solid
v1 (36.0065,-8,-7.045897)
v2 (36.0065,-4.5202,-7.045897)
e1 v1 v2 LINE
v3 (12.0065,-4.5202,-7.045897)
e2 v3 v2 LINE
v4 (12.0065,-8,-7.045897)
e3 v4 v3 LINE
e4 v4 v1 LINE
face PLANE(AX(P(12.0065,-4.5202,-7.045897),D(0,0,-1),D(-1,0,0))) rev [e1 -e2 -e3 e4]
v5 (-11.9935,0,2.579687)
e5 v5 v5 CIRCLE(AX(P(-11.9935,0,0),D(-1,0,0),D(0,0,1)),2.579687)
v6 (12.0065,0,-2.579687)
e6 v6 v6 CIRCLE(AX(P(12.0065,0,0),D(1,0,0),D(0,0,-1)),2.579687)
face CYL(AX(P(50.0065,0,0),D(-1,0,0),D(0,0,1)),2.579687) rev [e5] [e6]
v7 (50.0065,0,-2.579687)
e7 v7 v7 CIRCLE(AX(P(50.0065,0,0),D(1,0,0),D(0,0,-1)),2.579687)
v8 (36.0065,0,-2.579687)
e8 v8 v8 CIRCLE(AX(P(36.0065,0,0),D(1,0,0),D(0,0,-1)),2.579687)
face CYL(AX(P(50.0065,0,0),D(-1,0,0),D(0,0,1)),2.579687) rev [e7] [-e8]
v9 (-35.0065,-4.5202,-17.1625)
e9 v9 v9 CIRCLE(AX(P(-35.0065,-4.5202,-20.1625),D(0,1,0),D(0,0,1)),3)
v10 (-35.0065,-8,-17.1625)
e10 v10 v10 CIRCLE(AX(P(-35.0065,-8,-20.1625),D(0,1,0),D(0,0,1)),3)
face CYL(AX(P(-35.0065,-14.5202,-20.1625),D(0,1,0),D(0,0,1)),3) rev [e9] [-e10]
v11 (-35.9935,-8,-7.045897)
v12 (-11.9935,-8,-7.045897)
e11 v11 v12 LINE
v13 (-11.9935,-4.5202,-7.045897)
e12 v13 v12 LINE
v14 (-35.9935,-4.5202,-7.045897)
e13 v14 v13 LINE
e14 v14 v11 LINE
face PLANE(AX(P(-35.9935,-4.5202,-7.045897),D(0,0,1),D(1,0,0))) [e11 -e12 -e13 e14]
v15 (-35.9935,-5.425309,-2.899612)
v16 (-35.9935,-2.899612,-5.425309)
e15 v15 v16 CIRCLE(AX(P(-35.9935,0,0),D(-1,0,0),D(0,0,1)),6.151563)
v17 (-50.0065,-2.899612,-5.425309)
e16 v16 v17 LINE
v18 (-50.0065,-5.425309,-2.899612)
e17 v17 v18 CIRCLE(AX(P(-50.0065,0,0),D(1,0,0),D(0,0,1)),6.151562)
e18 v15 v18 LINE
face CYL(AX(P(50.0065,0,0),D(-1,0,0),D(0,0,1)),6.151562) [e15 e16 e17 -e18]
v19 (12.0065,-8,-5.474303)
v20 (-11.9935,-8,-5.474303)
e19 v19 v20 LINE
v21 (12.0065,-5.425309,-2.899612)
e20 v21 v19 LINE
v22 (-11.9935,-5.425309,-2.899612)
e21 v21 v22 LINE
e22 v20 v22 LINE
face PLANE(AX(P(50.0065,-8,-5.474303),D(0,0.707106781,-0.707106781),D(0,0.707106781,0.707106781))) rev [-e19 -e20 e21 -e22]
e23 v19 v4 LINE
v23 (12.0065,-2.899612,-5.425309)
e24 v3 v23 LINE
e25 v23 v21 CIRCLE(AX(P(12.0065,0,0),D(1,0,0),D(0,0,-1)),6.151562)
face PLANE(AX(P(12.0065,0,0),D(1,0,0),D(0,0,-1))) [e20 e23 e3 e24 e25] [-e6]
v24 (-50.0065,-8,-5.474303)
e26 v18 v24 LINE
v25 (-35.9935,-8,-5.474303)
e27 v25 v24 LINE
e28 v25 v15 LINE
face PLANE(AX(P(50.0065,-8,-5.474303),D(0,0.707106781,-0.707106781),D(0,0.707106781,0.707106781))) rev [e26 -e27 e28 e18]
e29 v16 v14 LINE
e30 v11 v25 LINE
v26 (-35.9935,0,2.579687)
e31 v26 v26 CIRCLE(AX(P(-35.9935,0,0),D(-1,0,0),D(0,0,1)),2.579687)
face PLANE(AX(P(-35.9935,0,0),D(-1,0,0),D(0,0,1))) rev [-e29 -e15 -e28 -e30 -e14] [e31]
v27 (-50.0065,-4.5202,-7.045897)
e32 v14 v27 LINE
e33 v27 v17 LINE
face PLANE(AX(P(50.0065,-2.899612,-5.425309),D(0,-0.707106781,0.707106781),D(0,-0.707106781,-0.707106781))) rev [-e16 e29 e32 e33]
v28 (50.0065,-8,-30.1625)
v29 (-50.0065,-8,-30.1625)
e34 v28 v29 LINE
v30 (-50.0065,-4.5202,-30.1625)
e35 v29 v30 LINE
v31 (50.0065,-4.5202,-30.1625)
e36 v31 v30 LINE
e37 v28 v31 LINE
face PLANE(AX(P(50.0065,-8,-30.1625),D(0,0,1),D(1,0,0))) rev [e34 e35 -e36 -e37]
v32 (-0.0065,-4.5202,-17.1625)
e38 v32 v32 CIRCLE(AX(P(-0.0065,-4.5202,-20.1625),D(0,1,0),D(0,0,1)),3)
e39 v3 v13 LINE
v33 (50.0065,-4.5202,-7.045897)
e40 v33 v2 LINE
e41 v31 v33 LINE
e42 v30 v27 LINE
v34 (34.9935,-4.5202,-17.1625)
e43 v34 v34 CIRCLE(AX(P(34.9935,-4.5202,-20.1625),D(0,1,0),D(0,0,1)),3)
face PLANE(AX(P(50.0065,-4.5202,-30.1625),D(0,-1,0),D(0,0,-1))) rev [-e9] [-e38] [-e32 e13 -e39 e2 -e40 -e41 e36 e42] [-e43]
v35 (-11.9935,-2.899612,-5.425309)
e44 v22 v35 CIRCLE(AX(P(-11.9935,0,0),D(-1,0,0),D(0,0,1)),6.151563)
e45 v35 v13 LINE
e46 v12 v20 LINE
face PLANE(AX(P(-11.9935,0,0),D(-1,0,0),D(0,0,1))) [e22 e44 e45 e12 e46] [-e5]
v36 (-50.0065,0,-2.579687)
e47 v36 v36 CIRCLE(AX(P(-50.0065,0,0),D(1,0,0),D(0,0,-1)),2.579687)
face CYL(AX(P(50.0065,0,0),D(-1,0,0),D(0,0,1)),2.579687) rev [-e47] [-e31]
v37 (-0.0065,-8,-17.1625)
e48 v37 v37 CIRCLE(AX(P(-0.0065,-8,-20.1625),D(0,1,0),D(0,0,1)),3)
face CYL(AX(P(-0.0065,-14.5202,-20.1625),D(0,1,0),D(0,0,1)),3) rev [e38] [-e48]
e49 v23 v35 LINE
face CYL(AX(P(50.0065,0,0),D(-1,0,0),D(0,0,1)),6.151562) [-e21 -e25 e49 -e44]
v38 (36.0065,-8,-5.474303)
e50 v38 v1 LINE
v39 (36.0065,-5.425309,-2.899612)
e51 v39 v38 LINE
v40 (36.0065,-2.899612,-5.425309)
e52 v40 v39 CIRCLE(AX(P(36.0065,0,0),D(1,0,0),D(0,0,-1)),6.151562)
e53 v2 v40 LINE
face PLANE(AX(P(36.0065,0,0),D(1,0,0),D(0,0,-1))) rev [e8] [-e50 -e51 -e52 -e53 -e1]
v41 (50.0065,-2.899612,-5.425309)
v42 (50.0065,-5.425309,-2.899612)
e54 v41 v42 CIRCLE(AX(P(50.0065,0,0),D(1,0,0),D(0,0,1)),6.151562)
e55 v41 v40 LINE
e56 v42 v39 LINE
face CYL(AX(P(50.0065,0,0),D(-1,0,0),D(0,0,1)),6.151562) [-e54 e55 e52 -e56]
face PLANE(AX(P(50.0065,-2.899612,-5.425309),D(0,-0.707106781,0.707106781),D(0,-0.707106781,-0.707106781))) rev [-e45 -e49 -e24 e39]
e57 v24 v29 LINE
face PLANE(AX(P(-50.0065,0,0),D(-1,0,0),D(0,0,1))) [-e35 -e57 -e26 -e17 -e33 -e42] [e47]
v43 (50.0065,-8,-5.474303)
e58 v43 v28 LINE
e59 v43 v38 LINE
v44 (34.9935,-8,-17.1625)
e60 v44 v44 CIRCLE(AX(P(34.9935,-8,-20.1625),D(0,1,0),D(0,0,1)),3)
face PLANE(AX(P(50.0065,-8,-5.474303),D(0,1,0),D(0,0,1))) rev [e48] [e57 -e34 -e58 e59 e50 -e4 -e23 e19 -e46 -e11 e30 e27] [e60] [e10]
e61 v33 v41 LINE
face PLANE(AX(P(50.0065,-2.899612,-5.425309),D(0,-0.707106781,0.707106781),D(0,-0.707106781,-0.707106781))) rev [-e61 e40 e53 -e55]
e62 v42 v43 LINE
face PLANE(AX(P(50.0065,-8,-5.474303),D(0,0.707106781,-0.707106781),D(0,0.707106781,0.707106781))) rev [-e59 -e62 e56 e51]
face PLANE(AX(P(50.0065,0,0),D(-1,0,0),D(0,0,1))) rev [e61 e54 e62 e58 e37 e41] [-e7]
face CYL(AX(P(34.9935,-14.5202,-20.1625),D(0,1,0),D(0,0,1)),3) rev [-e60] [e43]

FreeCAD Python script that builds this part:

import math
import FreeCAD as App
import Part
import Sketcher
Q = App.Units.Quantity

doc = App.newDocument("Part")
body = doc.addObject("PartDesign::Body", "Body")

# Sketch on YZ plane
sketch1 = body.newObject("Sketcher::SketchObject", "Sketch")
sketch1.AttachmentSupport = (doc.getObject("YZ_Plane"), [""])
sketch1.MapMode = "FlatFace"
sketch1.addGeometry(Part.LineSegment(App.Vector(-8, -5.474303, 0), App.Vector(-8, -30.1625, 0)), False)
sketch1.addGeometry(Part.LineSegment(App.Vector(-8, -30.1625, 0), App.Vector(-4.5202, -30.1625, 0)), False)
sketch1.addGeometry(Part.LineSegment(App.Vector(-4.5202, -30.1625, 0), App.Vector(-4.5202, -7.045897, 0)), False)
sketch1.addGeometry(Part.LineSegment(App.Vector(-4.5202, -7.045897, 0), App.Vector(-2.899612, -5.425309, 0)), False)
sketch1.addGeometry(Part.ArcOfCircle(Part.Circle(App.Vector(0, 0, 0), App.Vector(0, 0, 1), 6.151562), math.radians(-118.122731), math.radians(208.122731)), False)
sketch1.addGeometry(Part.LineSegment(App.Vector(-5.425309, -2.899612, 0), App.Vector(-8, -5.474303, 0)), False)
sketch1.addGeometry(Part.Circle(App.Vector(0, 0, 0), App.Vector(0, 0, 1), 2.579687), False)
sketch1.addConstraint(Sketcher.Constraint("Coincident", 0, 2, 1, 1))
sketch1.addConstraint(Sketcher.Constraint("Coincident", 1, 2, 2, 1))
sketch1.addConstraint(Sketcher.Constraint("Coincident", 2, 2, 3, 1))
sketch1.addConstraint(Sketcher.Constraint("Coincident", 3, 2, 4, 1))
sketch1.addConstraint(Sketcher.Constraint("Coincident", 4, 2, 5, 1))
sketch1.addConstraint(Sketcher.Constraint("Coincident", 5, 2, 0, 1))
sketch1.addConstraint(Sketcher.Constraint("Vertical", 0))
sketch1.addConstraint(Sketcher.Constraint("Horizontal", 1))
sketch1.addConstraint(Sketcher.Constraint("Vertical", 2))
sketch1.addConstraint(Sketcher.Constraint("Coincident", 4, 3, -1, 1))
sketch1.addConstraint(Sketcher.Constraint("Coincident", 6, 3, -1, 1))
sketch1.addConstraint(Sketcher.Constraint("Parallel", 3, 5))
sketch1.addConstraint(Sketcher.Constraint("Angle", 3, Q("45 deg")))
sketch1.addConstraint(Sketcher.Constraint("DistanceX", 0, 2, -1, 1, 8.0))
sketch1.addConstraint(Sketcher.Constraint("Diameter", 6, 5.159375))
sketch1.addConstraint(Sketcher.Constraint("DistanceX", 1, 1, 1, 2, 3.4798))
sketch1.addConstraint(Sketcher.Constraint("Radius", 4, 6.151562))
sketch1.addConstraint(Sketcher.Constraint("DistanceY", 0, 2, -1, 1, 30.1625))
sketch1.addConstraint(Sketcher.Constraint("Distance", 3, 2.291858))
sketch1.addConstraint(Sketcher.Constraint("DistanceY", 0, 2, 0, 1, 24.688197))
pad1 = body.newObject("PartDesign::Pad", "Pad")
pad1.Profile = sketch1
pad1.Length = 100.013
pad1.Midplane = True

# Sketch on XZ plane
sketch2 = body.newObject("Sketcher::SketchObject", "Sketch001")
sketch2.AttachmentSupport = (doc.getObject("XZ_Plane"), [""])
sketch2.MapMode = "FlatFace"
sketch2.AttachmentOffset = App.Placement(App.Vector(0, 0, 4.5202), App.Rotation())
sketch2.addGeometry(Part.Circle(App.Vector(-35.0065, -20.1625, 0), App.Vector(0, 0, 1), 3), False)
sketch2.addGeometry(Part.Circle(App.Vector(-0.0065, -20.1625, 0), App.Vector(0, 0, 1), 3), False)
sketch2.addGeometry(Part.Circle(App.Vector(34.9935, -20.1625, 0), App.Vector(0, 0, 1), 3), False)
sketch2.addConstraint(Sketcher.Constraint("Equal", 0, 1))
sketch2.addConstraint(Sketcher.Constraint("Equal", 1, 2))
sketch2.addConstraint(Sketcher.Constraint("Horizontal", 0, 3, 1, 3))
sketch2.addConstraint(Sketcher.Constraint("Horizontal", 1, 3, 2, 3))
sketch2.addConstraint(Sketcher.Constraint("Diameter", 0, 6.0))
sketch2.addConstraint(Sketcher.Constraint("DistanceX", 0, 3, 1, 3, 35.0))
sketch2.addConstraint(Sketcher.Constraint("DistanceX", 1, 3, 2, 3, 35.0))
sketch2.addConstraint(Sketcher.Constraint("DistanceX", 0, 3, -1, 1, 35.0065))
sketch2.addConstraint(Sketcher.Constraint("DistanceY", 0, 3, -1, 1, 20.1625))
pocket1 = body.newObject("PartDesign::Pocket", "Pocket")
pocket1.Profile = sketch2
pocket1.Length = 10
pocket1.Reversed = True

# Sketch on YZ plane
sketch3 = body.newObject("Sketcher::SketchObject", "Sketch002")
sketch3.AttachmentSupport = (doc.getObject("YZ_Plane"), [""])
sketch3.MapMode = "FlatFace"
sketch3.AttachmentOffset = App.Placement(App.Vector(0, 0, 36.0065), App.Rotation())
sketch3.addGeometry(Part.LineSegment(App.Vector(-5.425309, -2.899612, 0), App.Vector(-8, -5.474303, 0)), False)
sketch3.addGeometry(Part.LineSegment(App.Vector(-8, -5.474303, 0), App.Vector(-8, -7.045897, 0)), False)
sketch3.addGeometry(Part.LineSegment(App.Vector(-8, -7.045897, 0), App.Vector(-4.5202, -7.045897, 0)), False)
sketch3.addGeometry(Part.LineSegment(App.Vector(-4.5202, -7.045897, 0), App.Vector(-2.899612, -5.425309, 0)), False)
sketch3.addGeometry(Part.ArcOfCircle(Part.Circle(App.Vector(0, 0, 0), App.Vector(0, 0, 1), 6.151562), math.radians(-118.122731), math.radians(208.122731)), False)
sketch3.addConstraint(Sketcher.Constraint("Coincident", 0, 2, 1, 1))
sketch3.addConstraint(Sketcher.Constraint("Coincident", 1, 2, 2, 1))
sketch3.addConstraint(Sketcher.Constraint("Coincident", 2, 2, 3, 1))
sketch3.addConstraint(Sketcher.Constraint("Coincident", 3, 2, 4, 1))
sketch3.addConstraint(Sketcher.Constraint("Coincident", 4, 2, 0, 1))
sketch3.addConstraint(Sketcher.Constraint("Vertical", 1))
sketch3.addConstraint(Sketcher.Constraint("Horizontal", 2))
sketch3.addConstraint(Sketcher.Constraint("Coincident", 4, 3, -1, 1))
sketch3.addConstraint(Sketcher.Constraint("Parallel", 0, 3))
sketch3.addConstraint(Sketcher.Constraint("Angle", 0, Q("-135 deg")))
sketch3.addConstraint(Sketcher.Constraint("DistanceX", 0, 2, -1, 1, 8.0))
sketch3.addConstraint(Sketcher.Constraint("DistanceX", 2, 1, 2, 2, 3.4798))
sketch3.addConstraint(Sketcher.Constraint("Radius", 4, 6.151562))
sketch3.addConstraint(Sketcher.Constraint("Distance", 3, 2.291858))
sketch3.addConstraint(Sketcher.Constraint("DistanceY", 1, 2, 1, 1, 1.571594))
pocket2 = body.newObject("PartDesign::Pocket", "Pocket001")
pocket2.Profile = sketch3
pocket2.Length = 24

# Sketch on YZ plane
sketch4 = body.newObject("Sketcher::SketchObject", "Sketch003")
sketch4.AttachmentSupport = (doc.getObject("YZ_Plane"), [""])
sketch4.MapMode = "FlatFace"
sketch4.AttachmentOffset = App.Placement(App.Vector(0, 0, -11.9935), App.Rotation())
sketch4.addGeometry(Part.LineSegment(App.Vector(-2.899612, -5.425309, 0), App.Vector(-4.5202, -7.045897, 0)), False)
sketch4.addGeometry(Part.LineSegment(App.Vector(-4.5202, -7.045897, 0), App.Vector(-8, -7.045897, 0)), False)
sketch4.addGeometry(Part.LineSegment(App.Vector(-8, -7.045897, 0), App.Vector(-8, -5.474303, 0)), False)
sketch4.addGeometry(Part.LineSegment(App.Vector(-8, -5.474303, 0), App.Vector(-5.425309, -2.899612, 0)), False)
sketch4.addGeometry(Part.ArcOfCircle(Part.Circle(App.Vector(0, 0, 0), App.Vector(0, 0, 1), 6.151562), math.radians(-118.122731), math.radians(208.122731)), False)
sketch4.addConstraint(Sketcher.Constraint("Coincident", 0, 2, 1, 1))
sketch4.addConstraint(Sketcher.Constraint("Coincident", 1, 2, 2, 1))
sketch4.addConstraint(Sketcher.Constraint("Coincident", 2, 2, 3, 1))
sketch4.addConstraint(Sketcher.Constraint("Coincident", 3, 2, 4, 2))
sketch4.addConstraint(Sketcher.Constraint("Coincident", 4, 1, 0, 1))
sketch4.addConstraint(Sketcher.Constraint("Horizontal", 1))
sketch4.addConstraint(Sketcher.Constraint("Vertical", 2))
sketch4.addConstraint(Sketcher.Constraint("Coincident", 4, 3, -1, 1))
sketch4.addConstraint(Sketcher.Constraint("Parallel", 0, 3))
sketch4.addConstraint(Sketcher.Constraint("Angle", 0, Q("-135 deg")))
sketch4.addConstraint(Sketcher.Constraint("DistanceX", 1, 2, -1, 1, 8.0))
sketch4.addConstraint(Sketcher.Constraint("DistanceX", 1, 2, 1, 1, 3.4798))
sketch4.addConstraint(Sketcher.Constraint("Radius", 4, 6.151562))
sketch4.addConstraint(Sketcher.Constraint("Distance", 0, 2.291858))
sketch4.addConstraint(Sketcher.Constraint("DistanceY", 2, 1, 2, 2, 1.571594))
pocket3 = body.newObject("PartDesign::Pocket", "Pocket002")
pocket3.Profile = sketch4
pocket3.Length = 24

doc.recompute()
